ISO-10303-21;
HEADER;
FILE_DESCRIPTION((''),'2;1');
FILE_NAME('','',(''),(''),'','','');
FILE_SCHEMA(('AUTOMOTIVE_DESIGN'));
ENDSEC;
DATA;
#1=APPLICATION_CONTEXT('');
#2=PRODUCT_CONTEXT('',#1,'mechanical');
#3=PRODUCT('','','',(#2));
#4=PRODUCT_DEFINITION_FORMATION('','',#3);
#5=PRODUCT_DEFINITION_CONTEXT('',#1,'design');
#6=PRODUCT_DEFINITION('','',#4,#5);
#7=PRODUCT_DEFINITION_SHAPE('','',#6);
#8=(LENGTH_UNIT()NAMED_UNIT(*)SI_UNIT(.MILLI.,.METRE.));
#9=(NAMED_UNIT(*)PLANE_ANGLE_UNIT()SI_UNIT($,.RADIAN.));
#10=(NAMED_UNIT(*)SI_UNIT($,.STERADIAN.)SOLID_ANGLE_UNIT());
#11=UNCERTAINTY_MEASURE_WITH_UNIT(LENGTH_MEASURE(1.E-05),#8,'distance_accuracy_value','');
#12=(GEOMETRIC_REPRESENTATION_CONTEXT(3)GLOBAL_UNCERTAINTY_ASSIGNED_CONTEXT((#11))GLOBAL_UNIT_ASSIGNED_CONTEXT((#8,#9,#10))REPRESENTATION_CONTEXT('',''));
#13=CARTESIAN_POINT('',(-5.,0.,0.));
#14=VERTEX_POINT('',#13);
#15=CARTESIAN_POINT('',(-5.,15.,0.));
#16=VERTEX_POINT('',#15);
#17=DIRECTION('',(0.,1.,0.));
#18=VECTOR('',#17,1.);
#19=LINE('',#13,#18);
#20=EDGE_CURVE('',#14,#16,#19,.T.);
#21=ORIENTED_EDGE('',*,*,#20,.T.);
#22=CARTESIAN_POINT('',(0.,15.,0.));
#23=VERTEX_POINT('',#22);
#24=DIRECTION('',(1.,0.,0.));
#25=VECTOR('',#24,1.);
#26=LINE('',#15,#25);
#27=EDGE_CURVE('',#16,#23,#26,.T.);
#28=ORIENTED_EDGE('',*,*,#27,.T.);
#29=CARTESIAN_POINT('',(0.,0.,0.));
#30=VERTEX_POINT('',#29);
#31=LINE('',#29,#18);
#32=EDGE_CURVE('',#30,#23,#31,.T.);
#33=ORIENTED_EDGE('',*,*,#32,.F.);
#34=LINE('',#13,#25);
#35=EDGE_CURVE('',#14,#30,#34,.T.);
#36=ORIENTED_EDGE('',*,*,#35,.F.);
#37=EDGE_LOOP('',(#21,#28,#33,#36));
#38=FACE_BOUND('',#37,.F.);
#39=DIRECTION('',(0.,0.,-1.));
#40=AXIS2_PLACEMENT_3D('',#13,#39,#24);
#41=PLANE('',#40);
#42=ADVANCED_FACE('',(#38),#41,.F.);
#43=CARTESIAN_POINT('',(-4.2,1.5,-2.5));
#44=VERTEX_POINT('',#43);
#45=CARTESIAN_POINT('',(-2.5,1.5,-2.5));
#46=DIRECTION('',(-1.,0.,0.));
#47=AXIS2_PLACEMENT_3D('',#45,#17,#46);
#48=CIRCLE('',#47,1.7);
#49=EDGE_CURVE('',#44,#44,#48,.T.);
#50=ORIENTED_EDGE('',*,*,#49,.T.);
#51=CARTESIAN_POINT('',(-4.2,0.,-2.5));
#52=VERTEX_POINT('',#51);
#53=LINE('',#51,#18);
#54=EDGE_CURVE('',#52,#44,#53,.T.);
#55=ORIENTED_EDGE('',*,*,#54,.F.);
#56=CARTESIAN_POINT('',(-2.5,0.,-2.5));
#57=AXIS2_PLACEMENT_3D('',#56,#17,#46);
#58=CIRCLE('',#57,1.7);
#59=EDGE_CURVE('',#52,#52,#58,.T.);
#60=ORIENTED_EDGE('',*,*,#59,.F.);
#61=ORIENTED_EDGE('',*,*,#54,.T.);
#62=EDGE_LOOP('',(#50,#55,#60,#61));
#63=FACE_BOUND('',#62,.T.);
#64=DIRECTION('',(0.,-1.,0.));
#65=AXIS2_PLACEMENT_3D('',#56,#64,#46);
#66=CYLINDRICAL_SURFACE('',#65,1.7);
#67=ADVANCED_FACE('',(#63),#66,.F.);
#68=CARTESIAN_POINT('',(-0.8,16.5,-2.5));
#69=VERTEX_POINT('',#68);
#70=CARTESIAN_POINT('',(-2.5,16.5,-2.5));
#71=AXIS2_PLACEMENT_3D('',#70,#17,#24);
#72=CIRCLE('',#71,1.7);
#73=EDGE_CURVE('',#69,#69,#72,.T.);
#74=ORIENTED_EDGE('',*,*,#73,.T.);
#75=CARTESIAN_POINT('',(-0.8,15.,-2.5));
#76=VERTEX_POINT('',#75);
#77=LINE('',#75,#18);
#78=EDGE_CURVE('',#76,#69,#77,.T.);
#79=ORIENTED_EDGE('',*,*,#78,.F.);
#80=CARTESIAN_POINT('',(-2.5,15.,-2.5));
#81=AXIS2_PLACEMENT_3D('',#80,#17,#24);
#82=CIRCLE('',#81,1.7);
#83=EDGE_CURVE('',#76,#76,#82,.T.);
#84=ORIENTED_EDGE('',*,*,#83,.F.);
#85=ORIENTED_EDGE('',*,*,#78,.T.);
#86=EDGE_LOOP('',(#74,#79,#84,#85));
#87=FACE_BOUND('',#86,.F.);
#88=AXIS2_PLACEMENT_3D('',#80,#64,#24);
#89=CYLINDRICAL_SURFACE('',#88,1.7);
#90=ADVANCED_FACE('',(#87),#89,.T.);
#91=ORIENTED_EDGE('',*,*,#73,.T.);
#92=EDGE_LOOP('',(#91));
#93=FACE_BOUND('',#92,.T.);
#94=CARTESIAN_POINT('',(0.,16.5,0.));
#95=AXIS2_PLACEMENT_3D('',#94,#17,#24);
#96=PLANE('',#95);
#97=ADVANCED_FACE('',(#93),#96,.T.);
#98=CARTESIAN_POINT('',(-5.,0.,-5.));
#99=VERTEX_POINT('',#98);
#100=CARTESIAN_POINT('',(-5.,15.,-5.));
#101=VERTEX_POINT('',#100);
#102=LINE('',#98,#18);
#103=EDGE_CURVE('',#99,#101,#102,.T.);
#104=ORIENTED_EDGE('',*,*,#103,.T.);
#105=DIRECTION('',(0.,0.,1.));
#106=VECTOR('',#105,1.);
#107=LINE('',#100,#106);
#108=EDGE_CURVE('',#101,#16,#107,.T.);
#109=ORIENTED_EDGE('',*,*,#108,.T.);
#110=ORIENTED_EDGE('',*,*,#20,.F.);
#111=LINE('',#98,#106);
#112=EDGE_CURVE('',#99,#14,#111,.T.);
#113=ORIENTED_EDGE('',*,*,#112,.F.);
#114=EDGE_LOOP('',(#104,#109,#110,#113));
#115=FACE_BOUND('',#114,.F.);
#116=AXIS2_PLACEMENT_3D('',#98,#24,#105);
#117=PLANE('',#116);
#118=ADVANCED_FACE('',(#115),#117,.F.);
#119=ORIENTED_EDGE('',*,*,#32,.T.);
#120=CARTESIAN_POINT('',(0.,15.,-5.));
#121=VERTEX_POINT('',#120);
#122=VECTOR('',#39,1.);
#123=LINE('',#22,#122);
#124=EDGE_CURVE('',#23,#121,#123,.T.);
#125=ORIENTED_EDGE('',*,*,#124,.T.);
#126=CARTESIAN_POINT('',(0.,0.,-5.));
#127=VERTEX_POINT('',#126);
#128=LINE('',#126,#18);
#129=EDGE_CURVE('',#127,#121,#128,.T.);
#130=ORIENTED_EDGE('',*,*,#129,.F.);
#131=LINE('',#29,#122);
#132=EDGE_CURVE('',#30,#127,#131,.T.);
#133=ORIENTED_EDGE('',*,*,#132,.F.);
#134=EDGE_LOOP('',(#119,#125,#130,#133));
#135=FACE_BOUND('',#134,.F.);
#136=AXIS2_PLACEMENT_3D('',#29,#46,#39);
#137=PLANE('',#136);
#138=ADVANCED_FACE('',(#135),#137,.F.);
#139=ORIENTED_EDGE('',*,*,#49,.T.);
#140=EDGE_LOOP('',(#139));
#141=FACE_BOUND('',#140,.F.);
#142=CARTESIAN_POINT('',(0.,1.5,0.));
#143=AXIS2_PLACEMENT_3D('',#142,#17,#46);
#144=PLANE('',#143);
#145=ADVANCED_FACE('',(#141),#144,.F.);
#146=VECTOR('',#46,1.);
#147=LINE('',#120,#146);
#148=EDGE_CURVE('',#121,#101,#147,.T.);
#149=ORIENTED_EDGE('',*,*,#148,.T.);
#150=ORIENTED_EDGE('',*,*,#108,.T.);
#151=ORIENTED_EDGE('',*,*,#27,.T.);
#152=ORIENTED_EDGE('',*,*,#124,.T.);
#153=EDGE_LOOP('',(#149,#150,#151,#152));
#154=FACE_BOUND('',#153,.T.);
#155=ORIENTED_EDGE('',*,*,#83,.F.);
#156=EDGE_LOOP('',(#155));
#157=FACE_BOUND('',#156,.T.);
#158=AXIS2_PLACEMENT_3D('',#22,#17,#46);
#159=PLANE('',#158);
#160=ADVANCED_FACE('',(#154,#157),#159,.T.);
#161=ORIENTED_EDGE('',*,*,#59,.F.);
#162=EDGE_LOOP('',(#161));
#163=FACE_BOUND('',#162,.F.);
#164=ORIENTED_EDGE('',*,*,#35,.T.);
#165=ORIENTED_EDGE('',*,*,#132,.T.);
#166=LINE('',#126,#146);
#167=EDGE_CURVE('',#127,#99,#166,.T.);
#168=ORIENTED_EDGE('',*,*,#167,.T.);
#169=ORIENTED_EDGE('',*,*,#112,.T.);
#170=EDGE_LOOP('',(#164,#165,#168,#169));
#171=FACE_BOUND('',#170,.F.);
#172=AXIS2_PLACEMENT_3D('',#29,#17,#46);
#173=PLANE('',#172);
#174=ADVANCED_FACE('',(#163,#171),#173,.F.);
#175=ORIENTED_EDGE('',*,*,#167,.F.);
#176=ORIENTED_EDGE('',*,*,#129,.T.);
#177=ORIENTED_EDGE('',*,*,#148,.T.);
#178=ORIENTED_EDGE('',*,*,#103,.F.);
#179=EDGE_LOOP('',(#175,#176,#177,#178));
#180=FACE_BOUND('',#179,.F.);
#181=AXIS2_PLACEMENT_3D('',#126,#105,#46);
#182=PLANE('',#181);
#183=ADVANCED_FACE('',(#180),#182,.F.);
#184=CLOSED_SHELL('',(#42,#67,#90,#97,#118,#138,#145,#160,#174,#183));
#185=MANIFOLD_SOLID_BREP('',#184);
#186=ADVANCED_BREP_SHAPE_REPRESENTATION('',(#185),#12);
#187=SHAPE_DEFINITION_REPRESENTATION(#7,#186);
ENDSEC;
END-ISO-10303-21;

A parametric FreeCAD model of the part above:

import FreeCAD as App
import Part
import Sketcher


def add_polygon(sketch, points):
    """Adds a closed chain of lines whose ends are joined by coincident constraints."""
    first, n = sketch.GeometryCount, len(points)
    for a, b in zip(points, points[1:] + points[:1]):
        sketch.addGeometry(Part.LineSegment(App.Vector(*a, 0), App.Vector(*b, 0)), False)
    for i in range(n):
        sketch.addConstraint(Sketcher.Constraint("Coincident", first + i, 2, first + (i + 1) % n, 1))

doc = App.newDocument("Part")
body = doc.addObject("PartDesign::Body", "Body")

# Sketch on XZ plane
sketch1 = body.newObject("Sketcher::SketchObject", "Sketch")
sketch1.AttachmentSupport = (doc.getObject("XZ_Plane"), [""])
sketch1.MapMode = "FlatFace"
add_polygon(sketch1, [(-5, -5), (-5, 0), (0, 0), (0, -5)])  # lines 0-3
sketch1.addConstraint(Sketcher.Constraint("Vertical", 0))
sketch1.addConstraint(Sketcher.Constraint("Horizontal", 1))
sketch1.addConstraint(Sketcher.Constraint("Vertical", 2))
sketch1.addConstraint(Sketcher.Constraint("Horizontal", 3))
sketch1.addConstraint(Sketcher.Constraint("Coincident", 1, 2, -1, 1))
sketch1.addConstraint(Sketcher.Constraint("Equal", 3, 0))
sketch1.addConstraint(Sketcher.Constraint("DistanceX", 1, 1, 1, 2, 5.0))
pad1 = body.newObject("PartDesign::Pad", "Pad")
pad1.Profile = sketch1
pad1.Length = 15
pad1.Reversed = True

# Sketch on XZ plane
sketch2 = body.newObject("Sketcher::SketchObject", "Sketch001")
sketch2.AttachmentSupport = (doc.getObject("XZ_Plane"), [""])
sketch2.MapMode = "FlatFace"
sketch2.addGeometry(Part.Circle(App.Vector(-2.5, -2.5, 0), App.Vector(0, 0, 1), 1.7), False)
sketch2.addConstraint(Sketcher.Constraint("Diameter", 0, 3.4))
sketch2.addConstraint(Sketcher.Constraint("DistanceX", 0, 3, -1, 1, 2.5))
sketch2.addConstraint(Sketcher.Constraint("DistanceY", 0, 3, -1, 1, 2.5))
pocket1 = body.newObject("PartDesign::Pocket", "Pocket")
pocket1.Profile = sketch2
pocket1.Length = 1.5

# Sketch on XZ plane
sketch3 = body.newObject("Sketcher::SketchObject", "Sketch002")
sketch3.AttachmentSupport = (doc.getObject("XZ_Plane"), [""])
sketch3.MapMode = "FlatFace"
sketch3.AttachmentOffset = App.Placement(App.Vector(0, 0, -15), App.Rotation())
sketch3.addGeometry(Part.Circle(App.Vector(-2.5, -2.5, 0), App.Vector(0, 0, 1), 1.7), False)
sketch3.addConstraint(Sketcher.Constraint("Diameter", 0, 3.4))
sketch3.addConstraint(Sketcher.Constraint("DistanceX", 0, 3, -1, 1, 2.5))
sketch3.addConstraint(Sketcher.Constraint("DistanceY", 0, 3, -1, 1, 2.5))
pad2 = body.newObject("PartDesign::Pad", "Pad001")
pad2.Profile = sketch3
pad2.Length = 1.5
pad2.Reversed = True

doc.recompute()
